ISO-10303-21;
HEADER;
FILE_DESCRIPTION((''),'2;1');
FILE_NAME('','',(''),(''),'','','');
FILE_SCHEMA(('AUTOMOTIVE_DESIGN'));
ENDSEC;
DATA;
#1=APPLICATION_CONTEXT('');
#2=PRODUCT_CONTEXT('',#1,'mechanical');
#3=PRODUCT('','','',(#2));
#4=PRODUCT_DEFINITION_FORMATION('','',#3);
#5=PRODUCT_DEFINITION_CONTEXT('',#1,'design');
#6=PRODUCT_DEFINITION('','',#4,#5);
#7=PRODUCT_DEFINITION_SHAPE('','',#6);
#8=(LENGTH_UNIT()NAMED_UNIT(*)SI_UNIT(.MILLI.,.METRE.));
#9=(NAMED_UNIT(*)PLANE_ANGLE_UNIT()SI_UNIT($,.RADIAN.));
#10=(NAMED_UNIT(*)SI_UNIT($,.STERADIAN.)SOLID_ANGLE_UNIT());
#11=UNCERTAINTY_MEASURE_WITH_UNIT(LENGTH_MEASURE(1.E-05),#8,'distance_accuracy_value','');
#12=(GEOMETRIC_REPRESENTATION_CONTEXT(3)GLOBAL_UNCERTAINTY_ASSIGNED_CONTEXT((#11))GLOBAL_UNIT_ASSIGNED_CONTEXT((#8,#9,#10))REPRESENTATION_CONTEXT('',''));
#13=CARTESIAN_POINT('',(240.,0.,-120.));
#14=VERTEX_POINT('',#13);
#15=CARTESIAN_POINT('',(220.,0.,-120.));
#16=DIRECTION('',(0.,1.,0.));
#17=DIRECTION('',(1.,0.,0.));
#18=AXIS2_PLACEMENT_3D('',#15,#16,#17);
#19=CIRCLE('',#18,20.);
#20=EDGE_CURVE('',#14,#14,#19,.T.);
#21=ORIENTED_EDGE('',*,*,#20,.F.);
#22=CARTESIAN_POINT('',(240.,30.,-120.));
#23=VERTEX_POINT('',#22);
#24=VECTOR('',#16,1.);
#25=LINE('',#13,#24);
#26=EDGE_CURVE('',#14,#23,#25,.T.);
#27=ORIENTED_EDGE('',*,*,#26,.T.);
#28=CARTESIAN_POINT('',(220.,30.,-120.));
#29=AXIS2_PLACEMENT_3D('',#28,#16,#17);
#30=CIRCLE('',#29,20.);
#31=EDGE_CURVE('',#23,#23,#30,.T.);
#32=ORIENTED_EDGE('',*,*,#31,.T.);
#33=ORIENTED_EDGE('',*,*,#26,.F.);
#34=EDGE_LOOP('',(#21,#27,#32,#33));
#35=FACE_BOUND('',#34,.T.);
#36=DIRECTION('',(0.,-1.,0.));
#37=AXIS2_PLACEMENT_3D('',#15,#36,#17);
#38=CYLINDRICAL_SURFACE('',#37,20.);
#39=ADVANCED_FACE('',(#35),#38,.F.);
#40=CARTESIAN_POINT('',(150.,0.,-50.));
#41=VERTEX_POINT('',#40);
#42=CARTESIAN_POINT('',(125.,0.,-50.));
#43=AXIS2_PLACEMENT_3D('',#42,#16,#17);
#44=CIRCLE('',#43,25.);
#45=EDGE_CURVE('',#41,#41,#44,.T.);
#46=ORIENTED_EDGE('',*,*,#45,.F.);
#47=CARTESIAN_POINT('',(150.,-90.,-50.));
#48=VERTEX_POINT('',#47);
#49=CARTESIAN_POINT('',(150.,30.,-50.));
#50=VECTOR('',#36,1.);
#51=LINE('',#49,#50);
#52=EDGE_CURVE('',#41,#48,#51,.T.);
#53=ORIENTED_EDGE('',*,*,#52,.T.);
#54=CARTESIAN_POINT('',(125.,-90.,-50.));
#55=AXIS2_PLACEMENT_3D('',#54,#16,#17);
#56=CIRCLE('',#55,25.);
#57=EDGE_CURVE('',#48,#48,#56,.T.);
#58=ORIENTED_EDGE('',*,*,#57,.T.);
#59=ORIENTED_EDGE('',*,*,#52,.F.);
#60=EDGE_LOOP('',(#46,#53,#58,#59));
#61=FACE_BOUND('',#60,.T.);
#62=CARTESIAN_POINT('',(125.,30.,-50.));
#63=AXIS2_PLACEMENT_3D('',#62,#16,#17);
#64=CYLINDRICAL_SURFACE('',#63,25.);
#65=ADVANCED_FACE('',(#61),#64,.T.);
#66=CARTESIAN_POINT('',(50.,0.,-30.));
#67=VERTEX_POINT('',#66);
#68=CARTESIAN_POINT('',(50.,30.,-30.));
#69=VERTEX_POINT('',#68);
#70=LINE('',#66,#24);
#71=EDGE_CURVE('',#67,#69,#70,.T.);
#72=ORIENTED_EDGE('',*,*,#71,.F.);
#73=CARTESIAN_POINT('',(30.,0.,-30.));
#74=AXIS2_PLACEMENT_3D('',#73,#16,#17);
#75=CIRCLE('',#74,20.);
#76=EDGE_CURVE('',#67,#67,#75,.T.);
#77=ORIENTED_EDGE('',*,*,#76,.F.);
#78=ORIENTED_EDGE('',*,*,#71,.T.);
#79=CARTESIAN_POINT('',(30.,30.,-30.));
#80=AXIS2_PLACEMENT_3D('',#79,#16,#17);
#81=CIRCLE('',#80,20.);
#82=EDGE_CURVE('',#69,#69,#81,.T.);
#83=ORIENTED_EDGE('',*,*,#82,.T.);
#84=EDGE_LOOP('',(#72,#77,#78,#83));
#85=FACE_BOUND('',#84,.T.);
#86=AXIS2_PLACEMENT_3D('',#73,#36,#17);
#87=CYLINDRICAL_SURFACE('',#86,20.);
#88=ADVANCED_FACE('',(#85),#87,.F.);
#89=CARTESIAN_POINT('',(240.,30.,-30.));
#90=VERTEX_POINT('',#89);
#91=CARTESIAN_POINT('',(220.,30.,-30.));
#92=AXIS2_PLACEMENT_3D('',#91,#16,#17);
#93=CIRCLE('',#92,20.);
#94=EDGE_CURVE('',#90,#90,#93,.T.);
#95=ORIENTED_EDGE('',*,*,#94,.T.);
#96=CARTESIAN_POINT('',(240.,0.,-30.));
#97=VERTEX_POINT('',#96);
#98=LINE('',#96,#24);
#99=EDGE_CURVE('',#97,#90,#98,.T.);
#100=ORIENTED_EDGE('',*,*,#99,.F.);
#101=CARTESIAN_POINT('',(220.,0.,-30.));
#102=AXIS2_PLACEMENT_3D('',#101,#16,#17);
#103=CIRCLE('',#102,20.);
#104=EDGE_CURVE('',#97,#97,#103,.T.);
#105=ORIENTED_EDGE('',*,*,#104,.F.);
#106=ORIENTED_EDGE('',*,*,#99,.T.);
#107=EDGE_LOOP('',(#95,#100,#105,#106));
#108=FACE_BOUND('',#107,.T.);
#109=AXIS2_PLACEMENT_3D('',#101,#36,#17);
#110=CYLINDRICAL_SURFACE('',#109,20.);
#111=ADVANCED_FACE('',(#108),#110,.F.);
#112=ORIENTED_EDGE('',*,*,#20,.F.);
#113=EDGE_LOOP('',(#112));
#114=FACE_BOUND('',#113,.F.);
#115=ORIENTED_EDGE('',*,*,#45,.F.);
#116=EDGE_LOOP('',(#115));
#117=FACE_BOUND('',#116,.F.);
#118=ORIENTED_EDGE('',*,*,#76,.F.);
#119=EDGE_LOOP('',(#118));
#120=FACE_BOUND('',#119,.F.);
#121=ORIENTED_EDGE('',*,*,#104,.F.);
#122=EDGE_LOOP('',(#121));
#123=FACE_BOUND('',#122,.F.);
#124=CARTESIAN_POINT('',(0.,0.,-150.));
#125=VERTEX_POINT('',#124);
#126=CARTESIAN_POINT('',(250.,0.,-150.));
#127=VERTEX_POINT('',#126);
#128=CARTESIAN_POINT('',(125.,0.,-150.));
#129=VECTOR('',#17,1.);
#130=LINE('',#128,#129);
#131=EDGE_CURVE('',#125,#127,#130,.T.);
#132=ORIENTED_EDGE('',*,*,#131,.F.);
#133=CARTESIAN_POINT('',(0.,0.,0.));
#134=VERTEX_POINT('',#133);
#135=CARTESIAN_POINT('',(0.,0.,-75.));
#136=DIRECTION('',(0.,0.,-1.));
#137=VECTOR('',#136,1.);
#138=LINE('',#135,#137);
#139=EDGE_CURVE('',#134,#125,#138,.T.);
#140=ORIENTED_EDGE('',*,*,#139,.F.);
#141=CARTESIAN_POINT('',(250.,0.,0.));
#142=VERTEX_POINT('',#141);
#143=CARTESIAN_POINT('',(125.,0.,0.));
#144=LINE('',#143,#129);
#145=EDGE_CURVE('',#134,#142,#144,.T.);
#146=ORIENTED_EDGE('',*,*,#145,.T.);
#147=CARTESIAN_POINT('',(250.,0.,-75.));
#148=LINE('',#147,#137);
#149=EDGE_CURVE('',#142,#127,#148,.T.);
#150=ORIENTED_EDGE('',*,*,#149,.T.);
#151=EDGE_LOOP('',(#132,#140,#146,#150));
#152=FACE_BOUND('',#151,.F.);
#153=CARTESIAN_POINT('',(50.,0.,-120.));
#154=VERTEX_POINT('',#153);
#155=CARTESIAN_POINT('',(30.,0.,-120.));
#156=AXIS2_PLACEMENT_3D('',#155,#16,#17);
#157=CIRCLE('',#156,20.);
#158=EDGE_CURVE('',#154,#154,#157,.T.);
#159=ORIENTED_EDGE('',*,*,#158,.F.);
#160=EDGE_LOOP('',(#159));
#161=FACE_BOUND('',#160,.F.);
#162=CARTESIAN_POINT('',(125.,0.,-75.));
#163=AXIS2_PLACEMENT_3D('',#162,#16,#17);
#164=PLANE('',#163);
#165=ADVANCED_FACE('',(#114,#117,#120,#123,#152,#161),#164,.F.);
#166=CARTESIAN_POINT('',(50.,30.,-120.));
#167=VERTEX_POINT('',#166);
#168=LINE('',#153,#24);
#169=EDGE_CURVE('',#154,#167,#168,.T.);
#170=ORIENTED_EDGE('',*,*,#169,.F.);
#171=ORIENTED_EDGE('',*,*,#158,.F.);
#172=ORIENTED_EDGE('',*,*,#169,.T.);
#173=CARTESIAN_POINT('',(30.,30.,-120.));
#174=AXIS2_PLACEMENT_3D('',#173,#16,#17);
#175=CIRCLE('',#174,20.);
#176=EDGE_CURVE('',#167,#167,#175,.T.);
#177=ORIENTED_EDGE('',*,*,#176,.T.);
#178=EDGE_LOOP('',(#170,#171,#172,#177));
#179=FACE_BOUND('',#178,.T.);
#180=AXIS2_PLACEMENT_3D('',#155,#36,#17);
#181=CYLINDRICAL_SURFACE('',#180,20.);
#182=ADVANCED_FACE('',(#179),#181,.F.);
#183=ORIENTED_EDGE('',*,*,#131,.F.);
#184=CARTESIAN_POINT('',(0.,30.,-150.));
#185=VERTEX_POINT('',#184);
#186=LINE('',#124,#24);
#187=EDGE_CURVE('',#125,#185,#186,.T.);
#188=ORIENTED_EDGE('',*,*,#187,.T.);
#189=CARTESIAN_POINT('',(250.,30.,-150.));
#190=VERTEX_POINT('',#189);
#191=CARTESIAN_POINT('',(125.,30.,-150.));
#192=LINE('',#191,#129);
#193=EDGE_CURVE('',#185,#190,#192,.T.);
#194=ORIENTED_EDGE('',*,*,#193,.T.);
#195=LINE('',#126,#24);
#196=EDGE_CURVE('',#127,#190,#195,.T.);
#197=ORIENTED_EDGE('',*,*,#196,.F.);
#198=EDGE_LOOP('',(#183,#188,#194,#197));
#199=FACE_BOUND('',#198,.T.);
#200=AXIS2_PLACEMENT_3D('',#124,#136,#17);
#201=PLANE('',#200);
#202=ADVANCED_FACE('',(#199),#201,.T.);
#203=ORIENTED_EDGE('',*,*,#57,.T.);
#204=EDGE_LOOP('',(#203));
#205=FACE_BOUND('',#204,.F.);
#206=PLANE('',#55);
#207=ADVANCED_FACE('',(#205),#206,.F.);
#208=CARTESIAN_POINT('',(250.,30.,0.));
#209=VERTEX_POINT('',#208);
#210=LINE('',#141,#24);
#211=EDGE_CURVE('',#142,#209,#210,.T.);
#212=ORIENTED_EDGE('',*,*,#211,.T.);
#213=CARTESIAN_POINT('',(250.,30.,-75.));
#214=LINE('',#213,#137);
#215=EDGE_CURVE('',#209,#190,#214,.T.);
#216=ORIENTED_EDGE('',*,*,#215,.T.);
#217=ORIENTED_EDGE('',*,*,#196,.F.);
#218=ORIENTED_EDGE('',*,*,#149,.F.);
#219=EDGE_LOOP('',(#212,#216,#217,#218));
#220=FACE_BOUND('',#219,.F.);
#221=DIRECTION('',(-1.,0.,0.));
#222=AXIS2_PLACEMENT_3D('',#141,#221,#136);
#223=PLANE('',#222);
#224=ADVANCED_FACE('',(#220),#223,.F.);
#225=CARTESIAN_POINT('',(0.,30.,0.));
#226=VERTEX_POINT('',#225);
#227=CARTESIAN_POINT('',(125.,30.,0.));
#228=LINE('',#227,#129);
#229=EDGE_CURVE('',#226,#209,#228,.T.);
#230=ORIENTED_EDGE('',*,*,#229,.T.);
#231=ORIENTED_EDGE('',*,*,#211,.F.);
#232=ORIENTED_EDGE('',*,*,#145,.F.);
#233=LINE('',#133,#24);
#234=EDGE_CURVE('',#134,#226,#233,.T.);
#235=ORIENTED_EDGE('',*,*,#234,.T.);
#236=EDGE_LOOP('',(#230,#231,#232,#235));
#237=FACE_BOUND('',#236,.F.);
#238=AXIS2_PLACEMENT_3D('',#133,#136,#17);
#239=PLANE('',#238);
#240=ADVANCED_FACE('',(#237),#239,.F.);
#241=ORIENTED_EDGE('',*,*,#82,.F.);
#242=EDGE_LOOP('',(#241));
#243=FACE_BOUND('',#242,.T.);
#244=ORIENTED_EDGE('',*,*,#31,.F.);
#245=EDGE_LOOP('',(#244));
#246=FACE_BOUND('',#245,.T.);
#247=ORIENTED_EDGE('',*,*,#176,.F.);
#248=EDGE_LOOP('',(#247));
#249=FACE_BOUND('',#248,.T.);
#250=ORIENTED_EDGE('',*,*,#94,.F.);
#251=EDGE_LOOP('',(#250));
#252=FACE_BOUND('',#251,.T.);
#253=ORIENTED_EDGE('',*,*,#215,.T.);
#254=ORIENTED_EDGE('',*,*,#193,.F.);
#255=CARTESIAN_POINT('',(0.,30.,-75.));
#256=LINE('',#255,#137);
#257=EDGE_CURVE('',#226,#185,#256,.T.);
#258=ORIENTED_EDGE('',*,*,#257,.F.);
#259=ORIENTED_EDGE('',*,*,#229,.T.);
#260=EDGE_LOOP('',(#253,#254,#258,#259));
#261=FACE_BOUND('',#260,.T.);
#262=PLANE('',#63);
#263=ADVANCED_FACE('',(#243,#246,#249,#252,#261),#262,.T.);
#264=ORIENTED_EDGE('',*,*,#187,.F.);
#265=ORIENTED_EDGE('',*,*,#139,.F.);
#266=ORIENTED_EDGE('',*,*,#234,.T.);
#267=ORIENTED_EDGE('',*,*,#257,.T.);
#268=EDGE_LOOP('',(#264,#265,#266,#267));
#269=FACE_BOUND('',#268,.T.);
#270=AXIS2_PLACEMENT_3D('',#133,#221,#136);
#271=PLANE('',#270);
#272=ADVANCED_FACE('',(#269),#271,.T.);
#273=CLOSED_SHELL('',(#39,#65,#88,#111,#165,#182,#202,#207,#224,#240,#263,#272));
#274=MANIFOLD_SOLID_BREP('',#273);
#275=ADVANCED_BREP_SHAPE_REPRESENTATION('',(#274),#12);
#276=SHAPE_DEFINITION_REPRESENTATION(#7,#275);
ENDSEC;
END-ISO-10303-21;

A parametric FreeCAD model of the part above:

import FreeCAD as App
import Part
import Sketcher
from FreeCAD import Vector


def add_polygon(sketch, points):
    """Adds a closed chain of lines whose ends are joined by coincident constraints."""
    first, n = sketch.GeometryCount, len(points)
    for a, b in zip(points, points[1:] + points[:1]):
        sketch.addGeometry(Part.LineSegment(App.Vector(*a, 0), App.Vector(*b, 0)), False)
    for i in range(n):
        sketch.addConstraint(Sketcher.Constraint("Coincident", first + i, 2, first + (i + 1) % n, 1))

doc = App.newDocument("Part")
body = doc.addObject("PartDesign::Body", "Body")

# Sketch on XZ plane
sketch1 = body.newObject("Sketcher::SketchObject", "Sketch")
sketch1.AttachmentSupport = (doc.getObject("XZ_Plane"), [""])
sketch1.MapMode = "FlatFace"
add_polygon(sketch1, [(0, -150), (0, 0), (250, 0), (250, -150)])  # lines 0-3
sketch1.addGeometry(Part.Circle(Vector(30, -30, 0), Vector(0, 0, 1), 20), False)  # 4
sketch1.addGeometry(Part.Circle(Vector(220, -30, 0), Vector(0, 0, 1), 20), False)  # 5
sketch1.addGeometry(Part.Circle(Vector(30, -120, 0), Vector(0, 0, 1), 20), False)  # 6
sketch1.addGeometry(Part.Circle(Vector(220, -120, 0), Vector(0, 0, 1), 20), False)  # 7
sketch1.addConstraint([
    Sketcher.Constraint("Vertical", 0),
    Sketcher.Constraint("Horizontal", 1),
    Sketcher.Constraint("Vertical", 2),
    Sketcher.Constraint("Horizontal", 3),
    Sketcher.Constraint("Coincident", 0, 2, -1, 1),
    Sketcher.Constraint("Equal", 4, 5),
    Sketcher.Constraint("Equal", 5, 6),
    Sketcher.Constraint("Equal", 6, 7),
    Sketcher.Constraint("Horizontal", 4, 3, 5, 3),
    Sketcher.Constraint("Horizontal", 6, 3, 7, 3),
    Sketcher.Constraint("Vertical", 4, 3, 6, 3),
    Sketcher.Constraint("Vertical", 5, 3, 7, 3),
    Sketcher.Constraint("Diameter", 4, 40.0),
    Sketcher.Constraint("DistanceX", 1, 1, 1, 2, 250.0),
    Sketcher.Constraint("DistanceY", 0, 1, 0, 2, 150.0),
    Sketcher.Constraint("DistanceX", -1, 1, 4, 3, 30.0),
    Sketcher.Constraint("DistanceY", 4, 3, -1, 1, 30.0),
    Sketcher.Constraint("DistanceX", -1, 1, 5, 3, 220.0),
    Sketcher.Constraint("DistanceY", 6, 3, -1, 1, 120.0),
])
pad1 = body.newObject("PartDesign::Pad", "Pad")
pad1.Profile = sketch1
pad1.Length = 30
pad1.Reversed = True

# Sketch on XZ plane
sketch2 = body.newObject("Sketcher::SketchObject", "Sketch001")
sketch2.AttachmentSupport = (doc.getObject("XZ_Plane"), [""])
sketch2.MapMode = "FlatFace"
sketch2.AttachmentOffset = App.Placement(Vector(0, 0, -30), App.Rotation())
sketch2.addGeometry(Part.Circle(Vector(125, -50, 0), Vector(0, 0, 1), 25), False)
sketch2.addConstraint([
    Sketcher.Constraint("Diameter", 0, 50.0),
    Sketcher.Constraint("DistanceX", -1, 1, 0, 3, 125.0),
    Sketcher.Constraint("DistanceY", 0, 3, -1, 1, 50.0),
])
pad2 = body.newObject("PartDesign::Pad", "Pad001")
pad2.Profile = sketch2
pad2.Length = 120

doc.recompute()
